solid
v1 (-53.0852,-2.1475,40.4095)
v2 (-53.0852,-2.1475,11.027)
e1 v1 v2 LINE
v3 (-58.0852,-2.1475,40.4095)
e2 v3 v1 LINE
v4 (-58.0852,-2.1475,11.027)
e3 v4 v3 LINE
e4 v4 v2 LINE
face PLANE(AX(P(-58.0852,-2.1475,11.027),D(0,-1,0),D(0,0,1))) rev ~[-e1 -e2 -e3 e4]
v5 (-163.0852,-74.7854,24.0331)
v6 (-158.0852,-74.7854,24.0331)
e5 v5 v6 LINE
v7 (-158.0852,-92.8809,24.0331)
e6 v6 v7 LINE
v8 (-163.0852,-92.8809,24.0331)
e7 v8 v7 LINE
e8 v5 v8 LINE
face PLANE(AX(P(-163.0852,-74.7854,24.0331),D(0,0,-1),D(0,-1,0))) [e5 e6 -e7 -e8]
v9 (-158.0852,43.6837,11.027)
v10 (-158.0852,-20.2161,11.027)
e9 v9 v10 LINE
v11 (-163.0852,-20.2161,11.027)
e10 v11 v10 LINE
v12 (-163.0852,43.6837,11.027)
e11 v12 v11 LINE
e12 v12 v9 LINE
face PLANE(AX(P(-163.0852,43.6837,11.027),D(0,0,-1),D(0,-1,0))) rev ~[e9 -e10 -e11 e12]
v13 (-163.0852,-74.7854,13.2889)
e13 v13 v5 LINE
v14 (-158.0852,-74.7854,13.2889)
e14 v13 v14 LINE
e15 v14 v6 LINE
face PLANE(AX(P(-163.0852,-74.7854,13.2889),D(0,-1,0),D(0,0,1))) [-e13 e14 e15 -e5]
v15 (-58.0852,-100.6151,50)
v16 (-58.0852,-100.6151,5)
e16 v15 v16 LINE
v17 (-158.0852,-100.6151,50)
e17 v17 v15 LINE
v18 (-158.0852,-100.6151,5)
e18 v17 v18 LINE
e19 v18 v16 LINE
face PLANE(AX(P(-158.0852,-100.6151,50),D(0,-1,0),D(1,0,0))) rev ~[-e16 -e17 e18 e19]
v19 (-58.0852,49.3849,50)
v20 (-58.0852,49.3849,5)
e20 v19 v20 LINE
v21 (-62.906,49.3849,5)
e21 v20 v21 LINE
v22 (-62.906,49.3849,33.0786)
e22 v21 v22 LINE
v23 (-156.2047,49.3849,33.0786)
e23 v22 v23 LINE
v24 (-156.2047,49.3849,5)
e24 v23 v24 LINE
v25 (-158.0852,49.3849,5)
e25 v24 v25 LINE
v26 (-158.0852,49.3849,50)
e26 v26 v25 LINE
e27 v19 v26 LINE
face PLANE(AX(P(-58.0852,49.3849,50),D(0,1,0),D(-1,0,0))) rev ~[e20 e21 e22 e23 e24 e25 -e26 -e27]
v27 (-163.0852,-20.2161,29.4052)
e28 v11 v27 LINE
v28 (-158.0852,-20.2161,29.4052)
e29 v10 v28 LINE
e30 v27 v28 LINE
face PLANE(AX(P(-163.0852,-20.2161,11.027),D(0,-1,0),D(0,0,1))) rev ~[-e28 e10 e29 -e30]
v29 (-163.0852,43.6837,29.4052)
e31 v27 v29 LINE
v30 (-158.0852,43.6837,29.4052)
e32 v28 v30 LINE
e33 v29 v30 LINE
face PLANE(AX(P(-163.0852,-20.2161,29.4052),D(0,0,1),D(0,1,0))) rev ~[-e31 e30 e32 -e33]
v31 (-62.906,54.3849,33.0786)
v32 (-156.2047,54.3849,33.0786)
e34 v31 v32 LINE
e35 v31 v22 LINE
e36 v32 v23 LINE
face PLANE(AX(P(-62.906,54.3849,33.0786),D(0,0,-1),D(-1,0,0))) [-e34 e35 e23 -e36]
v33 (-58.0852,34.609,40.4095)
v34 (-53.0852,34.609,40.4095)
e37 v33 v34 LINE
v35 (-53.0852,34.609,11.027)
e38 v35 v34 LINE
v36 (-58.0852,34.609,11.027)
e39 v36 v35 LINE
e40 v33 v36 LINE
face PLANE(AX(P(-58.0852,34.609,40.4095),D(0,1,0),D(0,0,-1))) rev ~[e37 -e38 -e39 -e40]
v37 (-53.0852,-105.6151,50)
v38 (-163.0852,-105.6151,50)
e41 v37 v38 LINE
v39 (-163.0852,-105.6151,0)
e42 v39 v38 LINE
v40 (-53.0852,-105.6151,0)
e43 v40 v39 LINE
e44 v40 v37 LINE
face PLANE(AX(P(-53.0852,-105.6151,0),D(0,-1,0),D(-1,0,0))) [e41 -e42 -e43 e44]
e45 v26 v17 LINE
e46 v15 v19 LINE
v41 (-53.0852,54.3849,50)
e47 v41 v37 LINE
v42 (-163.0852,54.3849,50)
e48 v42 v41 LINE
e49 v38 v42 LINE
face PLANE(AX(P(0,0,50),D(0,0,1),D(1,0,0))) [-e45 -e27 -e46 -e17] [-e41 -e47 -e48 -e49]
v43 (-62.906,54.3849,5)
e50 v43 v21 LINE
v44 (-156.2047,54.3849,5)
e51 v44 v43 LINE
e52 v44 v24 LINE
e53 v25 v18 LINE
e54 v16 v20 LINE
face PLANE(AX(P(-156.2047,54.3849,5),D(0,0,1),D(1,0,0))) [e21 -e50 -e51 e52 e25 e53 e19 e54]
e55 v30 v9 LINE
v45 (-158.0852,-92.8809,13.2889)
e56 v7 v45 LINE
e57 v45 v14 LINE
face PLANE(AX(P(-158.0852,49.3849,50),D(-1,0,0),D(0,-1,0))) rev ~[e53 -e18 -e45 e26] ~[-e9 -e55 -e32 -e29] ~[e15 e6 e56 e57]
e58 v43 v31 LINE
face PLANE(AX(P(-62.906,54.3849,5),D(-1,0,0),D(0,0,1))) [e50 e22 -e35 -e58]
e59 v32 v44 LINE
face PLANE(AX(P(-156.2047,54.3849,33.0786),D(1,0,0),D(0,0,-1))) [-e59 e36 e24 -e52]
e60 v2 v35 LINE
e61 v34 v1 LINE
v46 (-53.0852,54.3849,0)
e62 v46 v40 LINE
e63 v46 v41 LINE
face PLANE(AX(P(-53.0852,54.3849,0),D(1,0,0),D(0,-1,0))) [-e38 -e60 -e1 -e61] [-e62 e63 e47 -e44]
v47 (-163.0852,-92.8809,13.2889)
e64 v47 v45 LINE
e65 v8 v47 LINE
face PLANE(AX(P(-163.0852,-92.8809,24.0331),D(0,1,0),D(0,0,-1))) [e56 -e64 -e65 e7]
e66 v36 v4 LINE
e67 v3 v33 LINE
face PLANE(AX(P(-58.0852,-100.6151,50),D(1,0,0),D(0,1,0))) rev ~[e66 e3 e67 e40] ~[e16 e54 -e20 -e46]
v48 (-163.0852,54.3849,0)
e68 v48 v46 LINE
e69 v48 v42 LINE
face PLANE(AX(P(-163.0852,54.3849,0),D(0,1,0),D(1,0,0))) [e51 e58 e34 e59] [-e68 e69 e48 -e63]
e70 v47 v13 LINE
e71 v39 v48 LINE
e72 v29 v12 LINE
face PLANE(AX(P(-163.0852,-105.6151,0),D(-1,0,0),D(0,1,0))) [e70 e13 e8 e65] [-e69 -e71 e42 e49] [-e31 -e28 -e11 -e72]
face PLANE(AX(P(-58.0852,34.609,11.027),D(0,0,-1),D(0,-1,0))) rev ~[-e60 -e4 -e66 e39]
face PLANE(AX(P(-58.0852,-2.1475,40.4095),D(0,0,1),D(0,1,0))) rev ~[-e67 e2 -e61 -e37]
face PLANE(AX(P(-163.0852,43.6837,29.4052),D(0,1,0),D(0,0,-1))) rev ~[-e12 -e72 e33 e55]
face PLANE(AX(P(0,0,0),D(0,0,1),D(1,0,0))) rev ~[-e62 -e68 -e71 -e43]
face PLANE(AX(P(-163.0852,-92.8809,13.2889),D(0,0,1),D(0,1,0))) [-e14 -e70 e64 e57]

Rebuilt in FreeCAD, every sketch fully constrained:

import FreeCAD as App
import Part
import Sketcher
Q = App.Units.Quantity

doc = App.newDocument("Part")
body = doc.addObject("PartDesign::Body", "Body")

sketch1 = body.newObject("Sketcher::SketchObject", "Sketch")
sketch1.AttachmentSupport = (doc.getObject("XY_Plane"), [""])
sketch1.MapMode = "FlatFace"
sketch1.addGeometry(Part.LineSegment(App.Vector(-53, 54, 0), App.Vector(-163, 54, 0)), False)
sketch1.addGeometry(Part.LineSegment(App.Vector(-163, 54, 0), App.Vector(-163, -106, 0)), False)
sketch1.addGeometry(Part.LineSegment(App.Vector(-163, -106, 0), App.Vector(-53, -106, 0)), False)
sketch1.addGeometry(Part.LineSegment(App.Vector(-53, -106, 0), App.Vector(-53, 54, 0)), False)
sketch1.addConstraint(Sketcher.Constraint("Coincident", 0, 2, 1, 1))
sketch1.addConstraint(Sketcher.Constraint("Coincident", 1, 2, 2, 1))
sketch1.addConstraint(Sketcher.Constraint("Coincident", 2, 2, 3, 1))
sketch1.addConstraint(Sketcher.Constraint("Coincident", 3, 2, 0, 1))
sketch1.addConstraint(Sketcher.Constraint("Horizontal", 0))
sketch1.addConstraint(Sketcher.Constraint("Vertical", 1))
sketch1.addConstraint(Sketcher.Constraint("Horizontal", 2))
sketch1.addConstraint(Sketcher.Constraint("Vertical", 3))
sketch1.addConstraint(Sketcher.Constraint("DistanceX", 0, 2, 0, 1, Q("110 mm")))
sketch1.addConstraint(Sketcher.Constraint("DistanceY", 1, 2, 1, 1, Q("160 mm")))
sketch1.addConstraint(Sketcher.Constraint("DistanceY", -1, 1, 0, 2, Q("54.385 mm")))
sketch1.addConstraint(Sketcher.Constraint("DistanceX", 0, 2, -1, 1, Q("163.0852 mm")))
pad1 = body.newObject("PartDesign::Pad", "Pad")
pad1.Profile = sketch1
pad1.Length = 50

sketch2 = body.newObject("Sketcher::SketchObject", "Sketch001")
sketch2.AttachmentSupport = (doc.getObject("XY_Plane"), [""])
sketch2.MapMode = "FlatFace"
sketch2.AttachmentOffset = App.Placement(App.Vector(0, 0, 50), App.Rotation())
sketch2.addGeometry(Part.LineSegment(App.Vector(-58, 49, 0), App.Vector(-158, 49, 0)), False)
sketch2.addGeometry(Part.LineSegment(App.Vector(-158, 49, 0), App.Vector(-158, -101, 0)), False)
sketch2.addGeometry(Part.LineSegment(App.Vector(-158, -101, 0), App.Vector(-58, -101, 0)), False)
sketch2.addGeometry(Part.LineSegment(App.Vector(-58, -101, 0), App.Vector(-58, 49, 0)), False)
sketch2.addConstraint(Sketcher.Constraint("Coincident", 0, 2, 1, 1))
sketch2.addConstraint(Sketcher.Constraint("Coincident", 1, 2, 2, 1))
sketch2.addConstraint(Sketcher.Constraint("Coincident", 2, 2, 3, 1))
sketch2.addConstraint(Sketcher.Constraint("Coincident", 3, 2, 0, 1))
sketch2.addConstraint(Sketcher.Constraint("Horizontal", 0))
sketch2.addConstraint(Sketcher.Constraint("Vertical", 1))
sketch2.addConstraint(Sketcher.Constraint("Horizontal", 2))
sketch2.addConstraint(Sketcher.Constraint("Vertical", 3))
sketch2.addConstraint(Sketcher.Constraint("DistanceX", 0, 2, 0, 1, Q("100 mm")))
sketch2.addConstraint(Sketcher.Constraint("DistanceY", 1, 2, 1, 1, Q("150 mm")))
sketch2.addConstraint(Sketcher.Constraint("DistanceY", -1, 1, 0, 2, Q("49.385 mm")))
sketch2.addConstraint(Sketcher.Constraint("DistanceX", 0, 2, -1, 1, Q("158.0852 mm")))
pocket1 = body.newObject("PartDesign::Pocket", "Pocket")
pocket1.Profile = sketch2
pocket1.Length = 45

sketch3 = body.newObject("Sketcher::SketchObject", "Sketch002")
sketch3.AttachmentSupport = (doc.getObject("XZ_Plane"), [""])
sketch3.MapMode = "FlatFace"
sketch3.AttachmentOffset = App.Placement(App.Vector(0, 0, -54.3849), App.Rotation())
sketch3.addGeometry(Part.LineSegment(App.Vector(-63, 5, 0), App.Vector(-156, 5, 0)), False)
sketch3.addGeometry(Part.LineSegment(App.Vector(-156, 5, 0), App.Vector(-156, 33, 0)), False)
sketch3.addGeometry(Part.LineSegment(App.Vector(-156, 33, 0), App.Vector(-63, 33, 0)), False)
sketch3.addGeometry(Part.LineSegment(App.Vector(-63, 33, 0), App.Vector(-63, 5, 0)), False)
sketch3.addConstraint(Sketcher.Constraint("Coincident", 0, 2, 1, 1))
sketch3.addConstraint(Sketcher.Constraint("Coincident", 1, 2, 2, 1))
sketch3.addConstraint(Sketcher.Constraint("Coincident", 2, 2, 3, 1))
sketch3.addConstraint(Sketcher.Constraint("Coincident", 3, 2, 0, 1))
sketch3.addConstraint(Sketcher.Constraint("Horizontal", 0))
sketch3.addConstraint(Sketcher.Constraint("Vertical", 1))
sketch3.addConstraint(Sketcher.Constraint("Horizontal", 2))
sketch3.addConstraint(Sketcher.Constraint("Vertical", 3))
sketch3.addConstraint(Sketcher.Constraint("DistanceY", -1, 1, 0, 2, Q("5 mm")))
sketch3.addConstraint(Sketcher.Constraint("DistanceX", 0, 2, 0, 1, Q("93.2987 mm")))
sketch3.addConstraint(Sketcher.Constraint("DistanceY", 1, 1, 1, 2, Q("28.0786 mm")))
sketch3.addConstraint(Sketcher.Constraint("DistanceX", 2, 2, -1, 1, Q("62.906 mm")))
pocket2 = body.newObject("PartDesign::Pocket", "Pocket001")
pocket2.Profile = sketch3
pocket2.Length = 45
pocket2.Reversed = True

sketch4 = body.newObject("Sketcher::SketchObject", "Sketch003")
sketch4.AttachmentSupport = (doc.getObject("YZ_Plane"), [""])
sketch4.MapMode = "FlatFace"
sketch4.AttachmentOffset = App.Placement(App.Vector(0, 0, -163.0852), App.Rotation())
sketch4.addGeometry(Part.LineSegment(App.Vector(-20, 29, 0), App.Vector(44, 29, 0)), False)
sketch4.addGeometry(Part.LineSegment(App.Vector(44, 29, 0), App.Vector(44, 11, 0)), False)
sketch4.addGeometry(Part.LineSegment(App.Vector(44, 11, 0), App.Vector(-20, 11, 0)), False)
sketch4.addGeometry(Part.LineSegment(App.Vector(-20, 11, 0), App.Vector(-20, 29, 0)), False)
sketch4.addConstraint(Sketcher.Constraint("Coincident", 0, 2, 1, 1))
sketch4.addConstraint(Sketcher.Constraint("Coincident", 1, 2, 2, 1))
sketch4.addConstraint(Sketcher.Constraint("Coincident", 2, 2, 3, 1))
sketch4.addConstraint(Sketcher.Constraint("Coincident", 3, 2, 0, 1))
sketch4.addConstraint(Sketcher.Constraint("Horizontal", 0))
sketch4.addConstraint(Sketcher.Constraint("Vertical", 1))
sketch4.addConstraint(Sketcher.Constraint("Horizontal", 2))
sketch4.addConstraint(Sketcher.Constraint("Vertical", 3))
sketch4.addConstraint(Sketcher.Constraint("DistanceX", 0, 1, 0, 2, Q("63.8998 mm")))
sketch4.addConstraint(Sketcher.Constraint("DistanceY", 1, 2, 1, 1, Q("18.3782 mm")))
sketch4.addConstraint(Sketcher.Constraint("DistanceY", -1, 1, 1, 2, Q("11.027 mm")))
sketch4.addConstraint(Sketcher.Constraint("DistanceX", 2, 2, -1, 1, Q("20.216 mm")))
pocket3 = body.newObject("PartDesign::Pocket", "Pocket002")
pocket3.Profile = sketch4
pocket3.Length = 45
pocket3.Reversed = True

sketch5 = body.newObject("Sketcher::SketchObject", "Sketch004")
sketch5.AttachmentSupport = (doc.getObject("YZ_Plane"), [""])
sketch5.MapMode = "FlatFace"
sketch5.AttachmentOffset = App.Placement(App.Vector(0, 0, -163.0852), App.Rotation())
sketch5.addGeometry(Part.LineSegment(App.Vector(-93, 13, 0), App.Vector(-93, 24, 0)), False)
sketch5.addGeometry(Part.LineSegment(App.Vector(-93, 24, 0), App.Vector(-75, 24, 0)), False)
sketch5.addGeometry(Part.LineSegment(App.Vector(-75, 24, 0), App.Vector(-75, 13, 0)), False)
sketch5.addGeometry(Part.LineSegment(App.Vector(-75, 13, 0), App.Vector(-93, 13, 0)), False)
sketch5.addConstraint(Sketcher.Constraint("Coincident", 0, 2, 1, 1))
sketch5.addConstraint(Sketcher.Constraint("Coincident", 1, 2, 2, 1))
sketch5.addConstraint(Sketcher.Constraint("Coincident", 2, 2, 3, 1))
sketch5.addConstraint(Sketcher.Constraint("Coincident", 3, 2, 0, 1))
sketch5.addConstraint(Sketcher.Constraint("Vertical", 0))
sketch5.addConstraint(Sketcher.Constraint("Horizontal", 1))
sketch5.addConstraint(Sketcher.Constraint("Vertical", 2))
sketch5.addConstraint(Sketcher.Constraint("Horizontal", 3))
sketch5.addConstraint(Sketcher.Constraint("DistanceX", 1, 1, 1, 2, Q("18.0955 mm")))
sketch5.addConstraint(Sketcher.Constraint("DistanceY", 0, 1, 0, 2, Q("10.7442 mm")))
sketch5.addConstraint(Sketcher.Constraint("DistanceX", 0, 2, -1, 1, Q("92.881 mm")))
sketch5.addConstraint(Sketcher.Constraint("DistanceY", -1, 1, 0, 2, Q("24.033 mm")))
pocket4 = body.newObject("PartDesign::Pocket", "Pocket003")
pocket4.Profile = sketch5
pocket4.Length = 45
pocket4.Reversed = True

sketch6 = body.newObject("Sketcher::SketchObject", "Sketch005")
sketch6.AttachmentSupport = (doc.getObject("YZ_Plane"), [""])
sketch6.MapMode = "FlatFace"
sketch6.AttachmentOffset = App.Placement(App.Vector(0, 0, -58.0852), App.Rotation())
sketch6.addGeometry(Part.LineSegment(App.Vector(35, 40, 0), App.Vector(35, 11, 0)), False)
sketch6.addGeometry(Part.LineSegment(App.Vector(35, 11, 0), App.Vector(-2, 11, 0)), False)
sketch6.addGeometry(Part.LineSegment(App.Vector(-2, 11, 0), App.Vector(-2, 40, 0)), False)
sketch6.addGeometry(Part.LineSegment(App.Vector(-2, 40, 0), App.Vector(35, 40, 0)), False)
sketch6.addConstraint(Sketcher.Constraint("Coincident", 0, 2, 1, 1))
sketch6.addConstraint(Sketcher.Constraint("Coincident", 1, 2, 2, 1))
sketch6.addConstraint(Sketcher.Constraint("Coincident", 2, 2, 3, 1))
sketch6.addConstraint(Sketcher.Constraint("Coincident", 3, 2, 0, 1))
sketch6.addConstraint(Sketcher.Constraint("Vertical", 0))
sketch6.addConstraint(Sketcher.Constraint("Horizontal", 1))
sketch6.addConstraint(Sketcher.Constraint("Vertical", 2))
sketch6.addConstraint(Sketcher.Constraint("Horizontal", 3))
sketch6.addConstraint(Sketcher.Constraint("DistanceX", 1, 2, 1, 1, Q("36.7565 mm")))
sketch6.addConstraint(Sketcher.Constraint("DistanceY", 0, 2, 0, 1, Q("29.3825 mm")))
sketch6.addConstraint(Sketcher.Constraint("DistanceX", -1, 1, 0, 2, Q("34.609 mm")))
sketch6.addConstraint(Sketcher.Constraint("DistanceY", -1, 1, 0, 2, Q("11.027 mm")))
pocket5 = body.newObject("PartDesign::Pocket", "Pocket004")
pocket5.Profile = sketch6
pocket5.Length = 45
pocket5.Reversed = True

doc.recompute()
